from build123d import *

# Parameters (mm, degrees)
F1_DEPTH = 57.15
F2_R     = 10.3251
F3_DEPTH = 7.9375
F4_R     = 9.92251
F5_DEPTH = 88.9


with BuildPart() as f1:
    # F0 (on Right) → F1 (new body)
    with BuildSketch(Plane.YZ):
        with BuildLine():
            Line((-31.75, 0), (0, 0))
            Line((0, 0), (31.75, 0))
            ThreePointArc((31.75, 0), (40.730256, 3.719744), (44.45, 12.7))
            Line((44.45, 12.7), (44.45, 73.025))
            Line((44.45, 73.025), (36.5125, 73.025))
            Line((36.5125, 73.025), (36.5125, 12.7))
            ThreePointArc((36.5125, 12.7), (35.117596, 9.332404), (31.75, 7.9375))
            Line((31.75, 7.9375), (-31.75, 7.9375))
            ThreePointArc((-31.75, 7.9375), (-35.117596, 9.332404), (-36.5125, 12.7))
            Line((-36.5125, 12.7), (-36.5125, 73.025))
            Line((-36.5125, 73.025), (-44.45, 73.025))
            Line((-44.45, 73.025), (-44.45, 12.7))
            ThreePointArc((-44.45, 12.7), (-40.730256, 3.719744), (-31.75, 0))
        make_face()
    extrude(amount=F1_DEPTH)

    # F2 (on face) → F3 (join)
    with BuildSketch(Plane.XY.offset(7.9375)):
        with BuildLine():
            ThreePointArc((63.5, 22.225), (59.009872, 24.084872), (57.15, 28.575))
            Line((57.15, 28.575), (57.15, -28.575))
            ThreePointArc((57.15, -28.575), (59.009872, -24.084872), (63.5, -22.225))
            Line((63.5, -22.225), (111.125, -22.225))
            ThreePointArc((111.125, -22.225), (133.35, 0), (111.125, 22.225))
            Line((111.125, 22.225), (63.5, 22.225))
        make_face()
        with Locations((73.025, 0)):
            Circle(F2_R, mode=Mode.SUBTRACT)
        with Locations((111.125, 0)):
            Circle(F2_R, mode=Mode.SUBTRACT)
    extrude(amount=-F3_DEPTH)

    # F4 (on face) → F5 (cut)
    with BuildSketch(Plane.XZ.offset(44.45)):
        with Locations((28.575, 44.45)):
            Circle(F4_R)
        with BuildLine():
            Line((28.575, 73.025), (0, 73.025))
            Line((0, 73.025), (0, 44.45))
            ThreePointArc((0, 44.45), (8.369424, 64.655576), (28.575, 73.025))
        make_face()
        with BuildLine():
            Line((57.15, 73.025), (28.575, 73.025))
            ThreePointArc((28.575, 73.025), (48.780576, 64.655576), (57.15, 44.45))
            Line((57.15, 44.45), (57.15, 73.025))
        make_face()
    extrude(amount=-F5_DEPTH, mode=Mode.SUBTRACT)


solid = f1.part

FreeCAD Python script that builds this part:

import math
import FreeCAD as App
import Part
import Sketcher
from FreeCAD import Vector
Q = App.Units.Quantity

doc = App.newDocument("Part")
params = doc.addObject("Spreadsheet::Sheet", "Params")
for row, (alias, value) in enumerate([
    ("sketch1_radius", "0.5 in"),
    ("sketch1_width", "2.5 in"),
    ("sketch1_radius2", "0.1875 in"),
    ("sketch1_height", "2.375 in"),
    ("pad1_length", "2.25 in"),
    ("sketch2_radius", "0.25 in"),
    ("sketch2_diameter", "0.813 in"),
    ("sketch2_radius2", "0.875 in"),
    ("sketch2_width", "1.875 in"),
    ("pad2_length", "0.3125 in"),
    ("sketch3_radius", "1.125 in"),
    ("pocket1_length", "3.5 in"),
], start=1):
    params.set(f"A{row}", alias)
    params.set(f"B{row}", "=" + value)
    params.setAlias(f"B{row}", alias)

body = doc.addObject("PartDesign::Body", "Body")

sketch1 = body.newObject("Sketcher::SketchObject", "Sketch")
sketch1.AttachmentSupport = (doc.getObject("YZ_Plane"), [""])
sketch1.MapMode = "FlatFace"
sketch1.addGeometry(Part.LineSegment(Vector(-31.8, 0, 0), Vector(31.8, 0, 0)), False)
sketch1.addGeometry(Part.ArcOfCircle(Part.Circle(Vector(31.7, 12.7, 0), Vector(0, 0, 1), 12.7), math.radians(-90), math.radians(0)), False)
sketch1.addGeometry(Part.LineSegment(Vector(44.5, 12.7, 0), Vector(44.5, 73, 0)), False)
sketch1.addGeometry(Part.LineSegment(Vector(44.5, 73, 0), Vector(36.5, 73, 0)), False)
sketch1.addGeometry(Part.LineSegment(Vector(36.5, 73, 0), Vector(36.5, 12.7, 0)), False)
sketch1.addGeometry(Part.ArcOfCircle(Part.Circle(Vector(31.7, 12.7, 0), Vector(0, 0, 1), 4.8), math.radians(-90), math.radians(0)), False)
sketch1.addGeometry(Part.LineSegment(Vector(31.8, 7.9, 0), Vector(-31.8, 7.9, 0)), False)
sketch1.addGeometry(Part.ArcOfCircle(Part.Circle(Vector(-31.7, 12.7, 0), Vector(0, 0, 1), 4.8), math.radians(-180), math.radians(-90)), False)
sketch1.addGeometry(Part.LineSegment(Vector(-36.5, 12.7, 0), Vector(-36.5, 73, 0)), False)
sketch1.addGeometry(Part.LineSegment(Vector(-36.5, 73, 0), Vector(-44.5, 73, 0)), False)
sketch1.addGeometry(Part.LineSegment(Vector(-44.5, 73, 0), Vector(-44.5, 12.7, 0)), False)
sketch1.addGeometry(Part.ArcOfCircle(Part.Circle(Vector(-31.7, 12.7, 0), Vector(0, 0, 1), 12.7), math.radians(-180), math.radians(-90)), False)
sketch1.addConstraint(Sketcher.Constraint("Tangent", 0, 2, 1, 1))
sketch1.addConstraint(Sketcher.Constraint("Tangent", 1, 2, 2, 1))
sketch1.addConstraint(Sketcher.Constraint("Coincident", 2, 2, 3, 1))
sketch1.addConstraint(Sketcher.Constraint("Coincident", 3, 2, 4, 1))
sketch1.addConstraint(Sketcher.Constraint("Tangent", 4, 2, 5, 2))
sketch1.addConstraint(Sketcher.Constraint("Tangent", 5, 1, 6, 1))
sketch1.addConstraint(Sketcher.Constraint("Tangent", 6, 2, 7, 2))
sketch1.addConstraint(Sketcher.Constraint("Tangent", 7, 1, 8, 1))
sketch1.addConstraint(Sketcher.Constraint("Coincident", 8, 2, 9, 1))
sketch1.addConstraint(Sketcher.Constraint("Coincident", 9, 2, 10, 1))
sketch1.addConstraint(Sketcher.Constraint("Tangent", 10, 2, 11, 1))
sketch1.addConstraint(Sketcher.Constraint("Tangent", 11, 2, 0, 1))
sketch1.addConstraint(Sketcher.Constraint("Horizontal", 0))
sketch1.addConstraint(Sketcher.Constraint("Vertical", 2))
sketch1.addConstraint(Sketcher.Constraint("Horizontal", 3))
sketch1.addConstraint(Sketcher.Constraint("Vertical", 4))
sketch1.addConstraint(Sketcher.Constraint("Horizontal", 6))
sketch1.addConstraint(Sketcher.Constraint("Vertical", 8))
sketch1.addConstraint(Sketcher.Constraint("Horizontal", 9))
sketch1.addConstraint(Sketcher.Constraint("Vertical", 10))
sketch1.addConstraint(Sketcher.Constraint("Coincident", 5, 3, 1, 3))
sketch1.addConstraint(Sketcher.Constraint("Coincident", 11, 3, 7, 3))
sketch1.addConstraint(Sketcher.Constraint("Equal", 5, 7))
sketch1.addConstraint(Sketcher.Constraint("Symmetric", 0, 2, 11, 2, -1, 1))
sketch1.addConstraint(Sketcher.Constraint("Horizontal", 3, 2, 8, 2))
sketch1.addConstraint(Sketcher.Constraint("Radius", 1, Q("0.5 in")))
sketch1.addConstraint(Sketcher.Constraint("DistanceX", 0, 1, 0, 2, Q("2.5 in")))
sketch1.addConstraint(Sketcher.Constraint("Radius", 5, Q("0.1875 in")))
sketch1.addConstraint(Sketcher.Constraint("DistanceY", 2, 1, 2, 2, Q("2.375 in")))
sketch1.setExpression("Constraints[25]", "Params.sketch1_radius")
sketch1.setExpression("Constraints[26]", "Params.sketch1_width")
sketch1.setExpression("Constraints[27]", "Params.sketch1_radius2")
sketch1.setExpression("Constraints[28]", "Params.sketch1_height")
pad1 = body.newObject("PartDesign::Pad", "Pad")
pad1.Profile = sketch1
pad1.setExpression("Length", "Params.pad1_length")

sketch2 = body.newObject("Sketcher::SketchObject", "Sketch001")
sketch2.AttachmentSupport = (doc.getObject("XY_Plane"), [""])
sketch2.MapMode = "FlatFace"
sketch2.AttachmentOffset = App.Placement(Vector(0, 0, 0.3125 * 25.4), App.Rotation())
sketch2.addGeometry(Part.ArcOfCircle(Part.Circle(Vector(64, 29, 0), Vector(0, 0, 1), 6), math.radians(-180), math.radians(-90)), False)
sketch2.addGeometry(Part.LineSegment(Vector(57, 29, 0), Vector(57, -29, 0)), False)
sketch2.addGeometry(Part.ArcOfCircle(Part.Circle(Vector(64, -29, 0), Vector(0, 0, 1), 6), math.radians(90), math.radians(180)), False)
sketch2.addGeometry(Part.LineSegment(Vector(64, -22, 0), Vector(111, -22, 0)), False)
sketch2.addGeometry(Part.ArcOfCircle(Part.Circle(Vector(111, 0, 0), Vector(0, 0, 1), 22), math.radians(-90), math.radians(90)), False)
sketch2.addGeometry(Part.LineSegment(Vector(111, 22, 0), Vector(64, 22, 0)), False)
sketch2.addGeometry(Part.Circle(Vector(73, 0, 0), Vector(0, 0, 1), 10), False)
sketch2.addGeometry(Part.Circle(Vector(111, 0, 0), Vector(0, 0, 1), 10), False)
sketch2.addConstraint(Sketcher.Constraint("Tangent", 0, 1, 1, 1))
sketch2.addConstraint(Sketcher.Constraint("Tangent", 1, 2, 2, 2))
sketch2.addConstraint(Sketcher.Constraint("Tangent", 2, 1, 3, 1))
sketch2.addConstraint(Sketcher.Constraint("Tangent", 3, 2, 4, 1))
sketch2.addConstraint(Sketcher.Constraint("Tangent", 4, 2, 5, 1))
sketch2.addConstraint(Sketcher.Constraint("Tangent", 5, 2, 0, 2))
sketch2.addConstraint(Sketcher.Constraint("Vertical", 1))
sketch2.addConstraint(Sketcher.Constraint("Horizontal", 3))
sketch2.addConstraint(Sketcher.Constraint("Horizontal", 5))
sketch2.addConstraint(Sketcher.Constraint("Coincident", 7, 3, 4, 3))
sketch2.addConstraint(Sketcher.Constraint("Equal", 0, 2))
sketch2.addConstraint(Sketcher.Constraint("Equal", 6, 7))
sketch2.addConstraint(Sketcher.Constraint("PointOnObject", 4, 3, -1))
sketch2.addConstraint(Sketcher.Constraint("PointOnObject", 6, 3, -1))
sketch2.addConstraint(Sketcher.Constraint("Radius", 0, Q("0.25 in")))
sketch2.addConstraint(Sketcher.Constraint("Diameter", 6, Q("0.813 in")))
sketch2.addConstraint(Sketcher.Constraint("Radius", 4, Q("0.875 in")))
sketch2.addConstraint(Sketcher.Constraint("DistanceX", -1, 1, 0, 3, Q("2.5 in")))
sketch2.addConstraint(Sketcher.Constraint("DistanceX", 6, 3, 4, 3, Q("1.5 in")))
sketch2.addConstraint(Sketcher.Constraint("DistanceX", 3, 1, 3, 2, Q("1.875 in")))
sketch2.setExpression("Constraints[14]", "Params.sketch2_radius")
sketch2.setExpression("Constraints[15]", "Params.sketch2_diameter")
sketch2.setExpression("Constraints[16]", "Params.sketch2_radius2")
sketch2.setExpression("Constraints[19]", "Params.sketch2_width")
pad2 = body.newObject("PartDesign::Pad", "Pad001")
pad2.Profile = sketch2
pad2.setExpression("Length", "Params.pad2_length")
pad2.Reversed = True

sketch3 = body.newObject("Sketcher::SketchObject", "Sketch002")
sketch3.AttachmentSupport = (doc.getObject("XZ_Plane"), [""])
sketch3.MapMode = "FlatFace"
sketch3.AttachmentOffset = App.Placement(Vector(0, 0, 1.75 * 25.4), App.Rotation())
sketch3.addGeometry(Part.Circle(Vector(29, 44, 0), Vector(0, 0, 1), 10), False)
sketch3.addGeometry(Part.LineSegment(Vector(29, 73, 0), Vector(0, 73, 0)), False)
sketch3.addGeometry(Part.LineSegment(Vector(0, 73, 0), Vector(0, 44, 0)), False)
sketch3.addGeometry(Part.ArcOfCircle(Part.Circle(Vector(29, 44, 0), Vector(0, 0, 1), 29), math.radians(90), math.radians(180)), False)
sketch3.addGeometry(Part.LineSegment(Vector(57, 73, 0), Vector(29, 73, 0)), False)
sketch3.addGeometry(Part.ArcOfCircle(Part.Circle(Vector(29, 44, 0), Vector(0, 0, 1), 29), math.radians(0), math.radians(90)), False)
sketch3.addGeometry(Part.LineSegment(Vector(57, 44, 0), Vector(57, 73, 0)), False)
sketch3.addConstraint(Sketcher.Constraint("Coincident", 1, 2, 2, 1))
sketch3.addConstraint(Sketcher.Constraint("Tangent", 2, 2, 3, 2))
sketch3.addConstraint(Sketcher.Constraint("Tangent", 3, 1, 1, 1))
sketch3.addConstraint(Sketcher.Constraint("Tangent", 4, 2, 5, 2))
sketch3.addConstraint(Sketcher.Constraint("Tangent", 5, 1, 6, 1))
sketch3.addConstraint(Sketcher.Constraint("Coincident", 6, 2, 4, 1))
sketch3.addConstraint(Sketcher.Constraint("Horizontal", 1))
sketch3.addConstraint(Sketcher.Constraint("Vertical", 2))
sketch3.addConstraint(Sketcher.Constraint("Horizontal", 4))
sketch3.addConstraint(Sketcher.Constraint("Vertical", 6))
sketch3.addConstraint(Sketcher.Constraint("Coincident", 3, 3, 0, 3))
sketch3.addConstraint(Sketcher.Constraint("Coincident", 5, 3, 0, 3))
sketch3.addConstraint(Sketcher.Constraint("Equal", 3, 5))
sketch3.addConstraint(Sketcher.Constraint("PointOnObject", 1, 2, -2))
sketch3.addConstraint(Sketcher.Constraint("Radius", 3, Q("1.125 in")))
sketch3.addConstraint(Sketcher.Constraint("Diameter", 0, Q("0.7813 in")))
sketch3.addConstraint(Sketcher.Constraint("DistanceY", -1, 1, 0, 3, Q("1.75 in")))
sketch3.setExpression("Constraints[14]", "Params.sketch3_radius")
pocket1 = body.newObject("PartDesign::Pocket", "Pocket")
pocket1.Profile = sketch3
pocket1.setExpression("Length", "Params.pocket1_length")

doc.recompute()
